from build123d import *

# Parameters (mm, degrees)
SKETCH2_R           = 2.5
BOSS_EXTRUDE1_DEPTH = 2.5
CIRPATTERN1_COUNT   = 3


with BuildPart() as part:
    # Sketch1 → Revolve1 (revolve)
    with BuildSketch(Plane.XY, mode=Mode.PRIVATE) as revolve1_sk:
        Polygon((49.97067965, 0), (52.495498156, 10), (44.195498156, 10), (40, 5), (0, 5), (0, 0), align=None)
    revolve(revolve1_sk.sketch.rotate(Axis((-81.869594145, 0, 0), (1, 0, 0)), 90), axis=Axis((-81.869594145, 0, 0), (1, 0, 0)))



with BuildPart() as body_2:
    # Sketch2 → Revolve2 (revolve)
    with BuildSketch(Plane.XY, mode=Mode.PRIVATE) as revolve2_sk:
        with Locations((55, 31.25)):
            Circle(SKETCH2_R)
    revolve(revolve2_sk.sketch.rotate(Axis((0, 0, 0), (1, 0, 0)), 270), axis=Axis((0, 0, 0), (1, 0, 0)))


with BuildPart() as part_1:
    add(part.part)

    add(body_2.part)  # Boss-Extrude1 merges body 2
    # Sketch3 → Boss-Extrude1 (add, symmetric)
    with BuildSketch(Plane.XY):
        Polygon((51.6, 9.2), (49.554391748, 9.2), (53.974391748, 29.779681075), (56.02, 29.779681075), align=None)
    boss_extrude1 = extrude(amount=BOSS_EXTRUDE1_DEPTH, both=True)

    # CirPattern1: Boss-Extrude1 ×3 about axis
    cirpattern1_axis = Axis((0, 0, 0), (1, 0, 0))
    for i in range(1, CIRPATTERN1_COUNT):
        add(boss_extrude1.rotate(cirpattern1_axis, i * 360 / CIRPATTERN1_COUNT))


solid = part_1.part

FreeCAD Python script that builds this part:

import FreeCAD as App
import Part
import Sketcher
from FreeCAD import Vector
Q = App.Units.Quantity


def add_polygon(sketch, points):
    """Adds a closed chain of lines whose ends are joined by coincident constraints."""
    first, n = sketch.GeometryCount, len(points)
    for a, b in zip(points, points[1:] + points[:1]):
        sketch.addGeometry(Part.LineSegment(App.Vector(*a, 0), App.Vector(*b, 0)), False)
    for i in range(n):
        sketch.addConstraint(Sketcher.Constraint("Coincident", first + i, 2, first + (i + 1) % n, 1))

doc = App.newDocument("Part")
body = doc.addObject("PartDesign::Body", "Body")

# Sketch on XY plane
sketch1 = body.newObject("Sketcher::SketchObject", "Sketch")
sketch1.AttachmentSupport = (doc.getObject("XY_Plane"), [""])
sketch1.MapMode = "FlatFace"
add_polygon(sketch1, [(50, 0), (52, 10), (44, 10), (40, 5), (0, 5), (0, 0)])  # lines 0-5
sketch1.addConstraint([
    Sketcher.Constraint("Horizontal", 1),
    Sketcher.Constraint("Horizontal", 3),
    Sketcher.Constraint("Vertical", 4),
    Sketcher.Constraint("Horizontal", 5),
    Sketcher.Constraint("Coincident", 4, 2, -1, 1),
    Sketcher.Constraint("DistanceX", 3, 2, 3, 1, 40.0),
    Sketcher.Constraint("DistanceY", 4, 2, 4, 1, 5.0),
    Sketcher.Constraint("Angle", 2, Q("-130 deg")),
    Sketcher.Constraint("DistanceX", 1, 2, 1, 1, 8.3),
    Sketcher.Constraint("DistanceY", -1, 1, 0, 2, 10.0),
    Sketcher.Constraint("Angle", 0, Q("75.83 deg")),
])
revolution = body.newObject("PartDesign::Revolution", "Revolution")
revolution.Profile = sketch1
revolution.ReferenceAxis = (sketch1, ["H_Axis"])
revolution.Angle = 360
body2 = doc.addObject("PartDesign::Body", "Body001")

# Sketch on XY plane
sketch2 = body2.newObject("Sketcher::SketchObject", "Sketch001")
sketch2.AttachmentSupport = (doc.getObject("XY_Plane001"), [""])
sketch2.MapMode = "FlatFace"
sketch2.addGeometry(Part.Circle(Vector(55, 31.2, 0), Vector(0, 0, 1), 2.5), False)
sketch2.addConstraint([
    Sketcher.Constraint("Diameter", 0, 5.0),
    Sketcher.Constraint("DistanceX", -1, 1, 0, 3, 55.0),
    Sketcher.Constraint("DistanceY", -1, 1, 0, 3, 31.25),
])
revolution2 = body2.newObject("PartDesign::Revolution", "Revolution001")
revolution2.Profile = sketch2
revolution2.ReferenceAxis = (sketch2, ["H_Axis"])
revolution2.Angle = 360
body.AllowCompound = True
doc.recompute()

boolean = body.newObject("PartDesign::Boolean", "Boolean")
boolean.Type = "Fuse"
boolean.addObjects([body2])

# Sketch on XY plane
sketch3 = body.newObject("Sketcher::SketchObject", "Sketch002")
sketch3.AttachmentSupport = (doc.getObject("XY_Plane"), [""])
sketch3.MapMode = "FlatFace"
add_polygon(sketch3, [(49.6, 9.2), (51.6, 9.2), (56, 29.8), (54, 29.8)])  # lines 0-3
sketch3.addConstraint([
    Sketcher.Constraint("Horizontal", 0),
    Sketcher.Constraint("Horizontal", 2),
    Sketcher.Constraint("Parallel", 1, 3),
    Sketcher.Constraint("DistanceX", -1, 1, 0, 2, 51.6),
    Sketcher.Constraint("DistanceY", -1, 1, 0, 2, 9.2),
    Sketcher.Constraint("DistanceX", -1, 1, 1, 2, 56.02),
    Sketcher.Constraint("DistanceX", 0, 1, 0, 2, 2.045608),
    Sketcher.Constraint("DistanceY", -1, 1, 1, 2, 29.779681),
])
pad1 = body.newObject("PartDesign::Pad", "Pad")
pad1.Profile = sketch3
pad1.Length = 5
pad1.Midplane = True
doc.recompute()

polarpattern = body.newObject("PartDesign::PolarPattern", "PolarPattern")
polarpattern.Originals = [pad1]
polarpattern.Axis = (doc.getObject("X_Axis"), [""])
polarpattern.Angle = 360
polarpattern.Occurrences = 3
body.Tip = polarpattern

doc.recompute()
